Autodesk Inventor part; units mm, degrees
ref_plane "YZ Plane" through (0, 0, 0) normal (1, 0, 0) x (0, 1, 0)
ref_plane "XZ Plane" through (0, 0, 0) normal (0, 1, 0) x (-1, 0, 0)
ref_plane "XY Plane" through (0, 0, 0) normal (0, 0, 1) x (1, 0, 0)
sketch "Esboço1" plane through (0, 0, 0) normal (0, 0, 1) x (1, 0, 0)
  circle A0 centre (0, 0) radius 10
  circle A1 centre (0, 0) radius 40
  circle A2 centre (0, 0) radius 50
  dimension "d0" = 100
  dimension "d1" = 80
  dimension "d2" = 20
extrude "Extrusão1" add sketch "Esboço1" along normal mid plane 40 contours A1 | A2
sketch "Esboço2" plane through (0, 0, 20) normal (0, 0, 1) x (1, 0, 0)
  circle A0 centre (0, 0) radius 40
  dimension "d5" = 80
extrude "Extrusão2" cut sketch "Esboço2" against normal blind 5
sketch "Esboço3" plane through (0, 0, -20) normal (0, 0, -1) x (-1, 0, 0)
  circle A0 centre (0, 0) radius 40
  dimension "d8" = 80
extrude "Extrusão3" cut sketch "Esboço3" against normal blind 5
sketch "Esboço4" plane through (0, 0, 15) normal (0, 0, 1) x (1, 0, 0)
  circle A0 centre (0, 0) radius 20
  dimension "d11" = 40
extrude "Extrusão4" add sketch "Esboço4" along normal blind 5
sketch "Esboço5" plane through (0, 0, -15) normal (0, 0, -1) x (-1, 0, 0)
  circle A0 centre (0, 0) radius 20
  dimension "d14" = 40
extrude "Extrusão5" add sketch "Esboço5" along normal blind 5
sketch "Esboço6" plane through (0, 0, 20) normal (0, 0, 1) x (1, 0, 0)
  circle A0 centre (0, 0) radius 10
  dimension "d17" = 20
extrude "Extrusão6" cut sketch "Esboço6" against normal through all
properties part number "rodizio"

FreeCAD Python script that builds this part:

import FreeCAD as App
import Part
import Sketcher

V = App.Vector

doc = App.newDocument("Part")
body = doc.addObject("PartDesign::Body", "Body")

sketch1 = body.newObject("Sketcher::SketchObject", "Sketch")
sketch1.AttachmentSupport = (doc.getObject("XY_Plane"), [""])
sketch1.MapMode = "FlatFace"
sketch1.addGeometry([
    Part.Circle(V(0, 0, 0), V(0, 0, 1), 50),
    Part.Circle(V(0, 0, 0), V(0, 0, 1), 10),
], False)
sketch1.addConstraint([
    Sketcher.Constraint("Coincident", 0, 3, -1, 1),
    Sketcher.Constraint("Coincident", 1, 3, -1, 1),
    Sketcher.Constraint("Diameter", 0, 100.0),
    Sketcher.Constraint("Diameter", 1, 20.0),
])
pad1 = body.newObject("PartDesign::Pad", "Pad")
pad1.Profile = sketch1
pad1.Length = 40
pad1.Midplane = True

sketch2 = body.newObject("Sketcher::SketchObject", "Sketch001")
sketch2.AttachmentSupport = (doc.getObject("XY_Plane"), [""])
sketch2.MapMode = "FlatFace"
sketch2.AttachmentOffset = App.Placement(V(0, 0, 20), App.Rotation())
sketch2.addGeometry(Part.Circle(V(0, 0, 0), V(0, 0, 1), 40), False)
sketch2.addConstraint([
    Sketcher.Constraint("Coincident", 0, 3, -1, 1),
    Sketcher.Constraint("Diameter", 0, 80.0),
])
pocket1 = body.newObject("PartDesign::Pocket", "Pocket")
pocket1.Profile = sketch2
pocket1.Length = 5

sketch3 = body.newObject("Sketcher::SketchObject", "Sketch002")
sketch3.AttachmentSupport = (doc.getObject("XY_Plane"), [""])
sketch3.MapMode = "FlatFace"
sketch3.AttachmentOffset = App.Placement(V(0, 0, -20), App.Rotation())
sketch3.addGeometry(Part.Circle(V(0, 0, 0), V(0, 0, 1), 40), False)
sketch3.addConstraint([
    Sketcher.Constraint("Coincident", 0, 3, -1, 1),
    Sketcher.Constraint("Diameter", 0, 80.0),
])
pocket2 = body.newObject("PartDesign::Pocket", "Pocket001")
pocket2.Profile = sketch3
pocket2.Length = 5
pocket2.Reversed = True

sketch4 = body.newObject("Sketcher::SketchObject", "Sketch003")
sketch4.AttachmentSupport = (doc.getObject("XY_Plane"), [""])
sketch4.MapMode = "FlatFace"
sketch4.AttachmentOffset = App.Placement(V(0, 0, 15), App.Rotation())
sketch4.addGeometry(Part.Circle(V(0, 0, 0), V(0, 0, 1), 20), False)
sketch4.addConstraint([
    Sketcher.Constraint("Coincident", 0, 3, -1, 1),
    Sketcher.Constraint("Diameter", 0, 40.0),
])
pad2 = body.newObject("PartDesign::Pad", "Pad001")
pad2.Profile = sketch4
pad2.Length = 5

sketch5 = body.newObject("Sketcher::SketchObject", "Sketch004")
sketch5.AttachmentSupport = (doc.getObject("XY_Plane"), [""])
sketch5.MapMode = "FlatFace"
sketch5.AttachmentOffset = App.Placement(V(0, 0, -15), App.Rotation())
sketch5.addGeometry(Part.Circle(V(0, 0, 0), V(0, 0, 1), 20), False)
sketch5.addConstraint([
    Sketcher.Constraint("Coincident", 0, 3, -1, 1),
    Sketcher.Constraint("Diameter", 0, 40.0),
])
pad3 = body.newObject("PartDesign::Pad", "Pad002")
pad3.Profile = sketch5
pad3.Length = 5
pad3.Reversed = True

sketch6 = body.newObject("Sketcher::SketchObject", "Sketch005")
sketch6.AttachmentSupport = (doc.getObject("XY_Plane"), [""])
sketch6.MapMode = "FlatFace"
sketch6.AttachmentOffset = App.Placement(V(0, 0, 20), App.Rotation())
sketch6.addGeometry(Part.Circle(V(0, 0, 0), V(0, 0, 1), 10), False)
sketch6.addConstraint([
    Sketcher.Constraint("Coincident", 0, 3, -1, 1),
    Sketcher.Constraint("Diameter", 0, 20.0),
])
pocket3 = body.newObject("PartDesign::Pocket", "Pocket002")
pocket3.Profile = sketch6
pocket3.Type = "ThroughAll"

doc.recompute()
